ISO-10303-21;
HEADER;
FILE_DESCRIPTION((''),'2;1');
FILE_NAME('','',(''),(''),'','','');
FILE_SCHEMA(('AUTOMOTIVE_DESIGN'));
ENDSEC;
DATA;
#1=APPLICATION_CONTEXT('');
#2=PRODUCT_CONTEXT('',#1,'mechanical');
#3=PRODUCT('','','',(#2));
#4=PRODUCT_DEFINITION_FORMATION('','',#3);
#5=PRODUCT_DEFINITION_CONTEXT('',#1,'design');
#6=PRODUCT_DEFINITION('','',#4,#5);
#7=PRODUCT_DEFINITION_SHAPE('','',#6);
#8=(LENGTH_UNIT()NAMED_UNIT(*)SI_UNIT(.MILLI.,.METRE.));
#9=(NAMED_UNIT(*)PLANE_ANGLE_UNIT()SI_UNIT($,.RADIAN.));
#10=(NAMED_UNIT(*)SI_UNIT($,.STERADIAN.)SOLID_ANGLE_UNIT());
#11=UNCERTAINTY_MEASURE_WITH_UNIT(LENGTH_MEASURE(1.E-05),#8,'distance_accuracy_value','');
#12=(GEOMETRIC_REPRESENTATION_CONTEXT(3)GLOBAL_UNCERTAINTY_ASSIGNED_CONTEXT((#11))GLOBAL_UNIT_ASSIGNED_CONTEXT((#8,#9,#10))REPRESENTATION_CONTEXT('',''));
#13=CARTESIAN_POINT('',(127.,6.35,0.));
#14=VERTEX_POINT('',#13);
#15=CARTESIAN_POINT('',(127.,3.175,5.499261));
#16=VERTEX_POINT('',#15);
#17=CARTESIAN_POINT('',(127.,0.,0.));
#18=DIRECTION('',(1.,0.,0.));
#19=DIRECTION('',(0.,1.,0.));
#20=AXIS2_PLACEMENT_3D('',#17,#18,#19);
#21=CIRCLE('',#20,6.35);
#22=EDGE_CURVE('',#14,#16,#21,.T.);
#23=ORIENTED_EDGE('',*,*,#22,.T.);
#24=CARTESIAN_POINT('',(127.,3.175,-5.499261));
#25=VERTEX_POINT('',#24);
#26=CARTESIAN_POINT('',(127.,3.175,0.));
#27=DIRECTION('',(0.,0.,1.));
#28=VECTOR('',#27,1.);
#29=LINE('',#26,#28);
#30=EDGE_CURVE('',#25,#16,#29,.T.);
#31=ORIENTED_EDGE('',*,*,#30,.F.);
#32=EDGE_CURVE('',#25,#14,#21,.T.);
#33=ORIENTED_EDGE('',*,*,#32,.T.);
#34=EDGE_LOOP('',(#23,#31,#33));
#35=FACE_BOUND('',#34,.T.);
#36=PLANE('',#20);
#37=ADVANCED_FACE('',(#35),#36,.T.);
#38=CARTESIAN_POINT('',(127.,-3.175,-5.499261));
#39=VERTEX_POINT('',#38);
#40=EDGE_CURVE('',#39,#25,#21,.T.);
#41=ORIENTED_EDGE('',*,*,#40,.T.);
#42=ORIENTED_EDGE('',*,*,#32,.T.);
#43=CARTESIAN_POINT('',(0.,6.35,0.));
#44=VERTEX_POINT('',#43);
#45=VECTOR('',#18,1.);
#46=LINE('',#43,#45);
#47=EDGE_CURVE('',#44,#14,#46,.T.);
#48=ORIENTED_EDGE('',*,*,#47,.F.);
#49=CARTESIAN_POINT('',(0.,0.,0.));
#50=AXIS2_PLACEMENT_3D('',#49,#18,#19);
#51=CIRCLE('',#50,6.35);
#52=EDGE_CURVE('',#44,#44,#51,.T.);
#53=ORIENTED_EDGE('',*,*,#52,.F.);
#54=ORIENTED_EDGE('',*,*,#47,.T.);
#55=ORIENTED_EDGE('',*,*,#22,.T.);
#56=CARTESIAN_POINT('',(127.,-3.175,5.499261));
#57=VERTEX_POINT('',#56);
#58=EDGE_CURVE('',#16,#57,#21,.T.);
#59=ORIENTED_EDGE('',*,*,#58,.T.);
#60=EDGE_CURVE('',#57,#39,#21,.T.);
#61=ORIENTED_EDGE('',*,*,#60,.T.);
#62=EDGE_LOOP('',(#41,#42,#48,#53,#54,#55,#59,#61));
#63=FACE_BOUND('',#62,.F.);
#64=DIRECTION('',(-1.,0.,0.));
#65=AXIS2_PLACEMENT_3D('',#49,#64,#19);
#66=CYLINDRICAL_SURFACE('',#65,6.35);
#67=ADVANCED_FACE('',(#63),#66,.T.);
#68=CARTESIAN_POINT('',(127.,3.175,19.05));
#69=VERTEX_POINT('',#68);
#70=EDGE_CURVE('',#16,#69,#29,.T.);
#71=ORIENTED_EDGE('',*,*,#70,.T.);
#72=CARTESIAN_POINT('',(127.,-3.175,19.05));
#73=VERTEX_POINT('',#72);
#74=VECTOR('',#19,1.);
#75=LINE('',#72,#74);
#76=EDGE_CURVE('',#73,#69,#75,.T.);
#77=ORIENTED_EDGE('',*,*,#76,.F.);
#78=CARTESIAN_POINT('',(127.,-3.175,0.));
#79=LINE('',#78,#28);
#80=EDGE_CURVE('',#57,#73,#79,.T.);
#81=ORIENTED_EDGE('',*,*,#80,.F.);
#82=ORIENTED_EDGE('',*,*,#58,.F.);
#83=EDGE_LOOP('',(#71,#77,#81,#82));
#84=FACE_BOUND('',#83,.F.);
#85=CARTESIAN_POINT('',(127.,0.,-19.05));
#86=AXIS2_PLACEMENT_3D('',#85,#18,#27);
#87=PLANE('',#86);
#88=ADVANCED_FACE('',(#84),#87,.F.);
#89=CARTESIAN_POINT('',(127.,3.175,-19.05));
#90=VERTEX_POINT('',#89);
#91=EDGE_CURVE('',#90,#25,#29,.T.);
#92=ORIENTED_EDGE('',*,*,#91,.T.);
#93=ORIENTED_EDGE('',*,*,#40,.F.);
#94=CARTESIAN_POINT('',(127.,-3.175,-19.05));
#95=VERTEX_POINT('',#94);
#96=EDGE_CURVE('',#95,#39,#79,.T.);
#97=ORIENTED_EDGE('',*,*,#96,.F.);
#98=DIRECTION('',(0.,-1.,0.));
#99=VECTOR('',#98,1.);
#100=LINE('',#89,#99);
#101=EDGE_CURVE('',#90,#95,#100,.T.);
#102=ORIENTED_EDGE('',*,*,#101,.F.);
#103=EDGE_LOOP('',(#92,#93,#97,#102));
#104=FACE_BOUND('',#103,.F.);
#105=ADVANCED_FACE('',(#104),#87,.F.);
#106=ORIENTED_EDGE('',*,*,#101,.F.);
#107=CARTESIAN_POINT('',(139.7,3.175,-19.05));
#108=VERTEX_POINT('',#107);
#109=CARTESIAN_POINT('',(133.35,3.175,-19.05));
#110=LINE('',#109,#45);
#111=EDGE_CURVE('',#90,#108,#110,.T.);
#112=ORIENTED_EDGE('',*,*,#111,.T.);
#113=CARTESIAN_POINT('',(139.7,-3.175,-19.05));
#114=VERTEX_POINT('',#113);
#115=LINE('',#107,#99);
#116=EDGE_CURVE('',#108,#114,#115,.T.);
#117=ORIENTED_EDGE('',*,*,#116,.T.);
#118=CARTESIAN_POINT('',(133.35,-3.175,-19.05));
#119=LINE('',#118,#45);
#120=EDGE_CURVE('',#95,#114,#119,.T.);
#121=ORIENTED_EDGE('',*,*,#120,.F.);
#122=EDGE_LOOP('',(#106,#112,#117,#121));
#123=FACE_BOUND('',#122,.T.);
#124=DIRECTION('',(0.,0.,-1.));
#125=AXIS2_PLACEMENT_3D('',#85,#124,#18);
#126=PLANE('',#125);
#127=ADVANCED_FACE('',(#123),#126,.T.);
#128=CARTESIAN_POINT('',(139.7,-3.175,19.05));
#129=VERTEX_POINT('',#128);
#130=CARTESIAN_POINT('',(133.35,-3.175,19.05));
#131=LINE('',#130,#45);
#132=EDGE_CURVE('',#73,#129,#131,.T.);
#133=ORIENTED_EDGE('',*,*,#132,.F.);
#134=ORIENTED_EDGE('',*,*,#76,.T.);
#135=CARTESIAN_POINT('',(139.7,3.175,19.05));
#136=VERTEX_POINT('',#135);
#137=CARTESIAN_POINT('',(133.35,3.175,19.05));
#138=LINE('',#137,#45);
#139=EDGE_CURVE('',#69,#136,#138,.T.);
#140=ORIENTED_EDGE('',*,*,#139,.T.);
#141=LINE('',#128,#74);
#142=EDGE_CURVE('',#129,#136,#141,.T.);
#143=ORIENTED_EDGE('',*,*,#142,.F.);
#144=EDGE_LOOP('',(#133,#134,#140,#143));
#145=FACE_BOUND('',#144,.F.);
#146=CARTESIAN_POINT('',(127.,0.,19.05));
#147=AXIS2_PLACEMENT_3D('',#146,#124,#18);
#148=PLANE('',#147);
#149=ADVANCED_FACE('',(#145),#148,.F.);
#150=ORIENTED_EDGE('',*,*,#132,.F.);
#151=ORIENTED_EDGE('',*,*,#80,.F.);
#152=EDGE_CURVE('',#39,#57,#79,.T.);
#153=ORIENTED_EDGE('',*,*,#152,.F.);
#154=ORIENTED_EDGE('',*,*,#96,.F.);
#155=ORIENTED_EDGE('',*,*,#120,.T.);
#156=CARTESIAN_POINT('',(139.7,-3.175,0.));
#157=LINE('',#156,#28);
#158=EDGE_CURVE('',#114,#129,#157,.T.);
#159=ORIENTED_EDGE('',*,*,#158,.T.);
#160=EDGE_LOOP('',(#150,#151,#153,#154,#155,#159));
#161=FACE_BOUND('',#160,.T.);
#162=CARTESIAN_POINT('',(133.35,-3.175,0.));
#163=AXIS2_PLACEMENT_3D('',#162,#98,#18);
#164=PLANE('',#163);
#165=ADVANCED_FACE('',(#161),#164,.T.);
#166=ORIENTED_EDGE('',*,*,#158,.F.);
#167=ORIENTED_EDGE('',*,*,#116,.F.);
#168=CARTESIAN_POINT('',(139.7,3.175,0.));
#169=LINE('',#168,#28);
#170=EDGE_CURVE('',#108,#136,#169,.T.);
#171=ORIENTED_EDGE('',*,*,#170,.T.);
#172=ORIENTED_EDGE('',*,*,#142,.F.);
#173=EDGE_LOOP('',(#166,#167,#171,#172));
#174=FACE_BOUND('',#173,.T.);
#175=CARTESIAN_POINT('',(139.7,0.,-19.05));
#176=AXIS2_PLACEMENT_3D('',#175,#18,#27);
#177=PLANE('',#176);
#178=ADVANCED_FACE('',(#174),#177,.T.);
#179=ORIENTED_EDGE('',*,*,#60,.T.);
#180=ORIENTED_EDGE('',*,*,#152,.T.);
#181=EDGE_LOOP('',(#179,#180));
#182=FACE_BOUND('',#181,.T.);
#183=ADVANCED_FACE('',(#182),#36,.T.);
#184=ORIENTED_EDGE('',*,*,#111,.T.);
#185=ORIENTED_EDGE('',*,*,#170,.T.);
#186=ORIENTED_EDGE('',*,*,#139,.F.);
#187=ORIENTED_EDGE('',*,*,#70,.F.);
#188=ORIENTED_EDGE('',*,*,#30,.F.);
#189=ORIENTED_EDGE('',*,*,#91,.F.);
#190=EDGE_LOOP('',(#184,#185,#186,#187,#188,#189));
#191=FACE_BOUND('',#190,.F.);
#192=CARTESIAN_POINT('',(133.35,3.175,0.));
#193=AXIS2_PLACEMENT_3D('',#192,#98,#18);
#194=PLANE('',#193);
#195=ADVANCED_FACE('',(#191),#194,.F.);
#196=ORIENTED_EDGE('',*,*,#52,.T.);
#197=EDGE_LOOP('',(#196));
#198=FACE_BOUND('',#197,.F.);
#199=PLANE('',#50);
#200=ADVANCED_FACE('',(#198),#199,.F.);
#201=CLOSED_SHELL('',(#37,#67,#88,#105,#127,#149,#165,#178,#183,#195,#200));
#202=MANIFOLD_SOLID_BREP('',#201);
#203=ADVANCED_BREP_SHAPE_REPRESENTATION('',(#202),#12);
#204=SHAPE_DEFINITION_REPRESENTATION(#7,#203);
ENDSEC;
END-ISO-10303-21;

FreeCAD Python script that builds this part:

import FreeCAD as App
import Part
import Sketcher
from FreeCAD import Vector
Q = App.Units.Quantity

doc = App.newDocument("Part")
body = doc.addObject("PartDesign::Body", "Body")

sketch1 = doc.addObject("Sketcher::SketchObject", "Sketch")
body.addObject(sketch1)
sketch1.AttachmentSupport = (doc.YZ_Plane, [""])
sketch1.MapMode = "FlatFace"
sketch1.addGeometry(Part.Circle(Vector(0, 0, 0), Vector(0, 0, 1), 6), False)
sketch1.addConstraint(Sketcher.Constraint("Coincident", 0, 3, -1, 1))
sketch1.addConstraint(Sketcher.Constraint("Diameter", 0, Q("0.5 in")))
pad1 = doc.addObject("PartDesign::Pad", "Pad")
body.addObject(pad1)
pad1.Profile = sketch1
pad1.Length = Q("5 in")

sketch2 = doc.addObject("Sketcher::SketchObject", "Sketch001")
body.addObject(sketch2)
sketch2.AttachmentSupport = (doc.XZ_Plane, [""])
sketch2.MapMode = "FlatFace"
sketch2.addGeometry(Part.LineSegment(Vector(127, 19, 0), Vector(127, -19, 0)), False)
sketch2.addGeometry(Part.LineSegment(Vector(127, -19, 0), Vector(140, -19, 0)), False)
sketch2.addGeometry(Part.LineSegment(Vector(140, -19, 0), Vector(140, 19, 0)), False)
sketch2.addGeometry(Part.LineSegment(Vector(140, 19, 0), Vector(127, 19, 0)), False)
sketch2.addConstraint(Sketcher.Constraint("Coincident", 0, 2, 1, 1))
sketch2.addConstraint(Sketcher.Constraint("Coincident", 1, 2, 2, 1))
sketch2.addConstraint(Sketcher.Constraint("Coincident", 2, 2, 3, 1))
sketch2.addConstraint(Sketcher.Constraint("Coincident", 3, 2, 0, 1))
sketch2.addConstraint(Sketcher.Constraint("Vertical", 0))
sketch2.addConstraint(Sketcher.Constraint("Horizontal", 1))
sketch2.addConstraint(Sketcher.Constraint("Vertical", 2))
sketch2.addConstraint(Sketcher.Constraint("Horizontal", 3))
sketch2.addConstraint(Sketcher.Constraint("DistanceX", 1, 1, 1, 2, Q("0.5 in")))
sketch2.addConstraint(Sketcher.Constraint("DistanceY", 0, 2, 0, 1, Q("1.5 in")))
sketch2.addConstraint(Sketcher.Constraint("DistanceX", -1, 1, 0, 2, Q("5 in")))
sketch2.addConstraint(Sketcher.Constraint("DistanceY", 0, 2, -1, 1, Q("0.75 in")))
pad2 = doc.addObject("PartDesign::Pad", "Pad001")
body.addObject(pad2)
pad2.Profile = sketch2
pad2.Length = Q("0.25 in")
pad2.Midplane = True

doc.recompute()
